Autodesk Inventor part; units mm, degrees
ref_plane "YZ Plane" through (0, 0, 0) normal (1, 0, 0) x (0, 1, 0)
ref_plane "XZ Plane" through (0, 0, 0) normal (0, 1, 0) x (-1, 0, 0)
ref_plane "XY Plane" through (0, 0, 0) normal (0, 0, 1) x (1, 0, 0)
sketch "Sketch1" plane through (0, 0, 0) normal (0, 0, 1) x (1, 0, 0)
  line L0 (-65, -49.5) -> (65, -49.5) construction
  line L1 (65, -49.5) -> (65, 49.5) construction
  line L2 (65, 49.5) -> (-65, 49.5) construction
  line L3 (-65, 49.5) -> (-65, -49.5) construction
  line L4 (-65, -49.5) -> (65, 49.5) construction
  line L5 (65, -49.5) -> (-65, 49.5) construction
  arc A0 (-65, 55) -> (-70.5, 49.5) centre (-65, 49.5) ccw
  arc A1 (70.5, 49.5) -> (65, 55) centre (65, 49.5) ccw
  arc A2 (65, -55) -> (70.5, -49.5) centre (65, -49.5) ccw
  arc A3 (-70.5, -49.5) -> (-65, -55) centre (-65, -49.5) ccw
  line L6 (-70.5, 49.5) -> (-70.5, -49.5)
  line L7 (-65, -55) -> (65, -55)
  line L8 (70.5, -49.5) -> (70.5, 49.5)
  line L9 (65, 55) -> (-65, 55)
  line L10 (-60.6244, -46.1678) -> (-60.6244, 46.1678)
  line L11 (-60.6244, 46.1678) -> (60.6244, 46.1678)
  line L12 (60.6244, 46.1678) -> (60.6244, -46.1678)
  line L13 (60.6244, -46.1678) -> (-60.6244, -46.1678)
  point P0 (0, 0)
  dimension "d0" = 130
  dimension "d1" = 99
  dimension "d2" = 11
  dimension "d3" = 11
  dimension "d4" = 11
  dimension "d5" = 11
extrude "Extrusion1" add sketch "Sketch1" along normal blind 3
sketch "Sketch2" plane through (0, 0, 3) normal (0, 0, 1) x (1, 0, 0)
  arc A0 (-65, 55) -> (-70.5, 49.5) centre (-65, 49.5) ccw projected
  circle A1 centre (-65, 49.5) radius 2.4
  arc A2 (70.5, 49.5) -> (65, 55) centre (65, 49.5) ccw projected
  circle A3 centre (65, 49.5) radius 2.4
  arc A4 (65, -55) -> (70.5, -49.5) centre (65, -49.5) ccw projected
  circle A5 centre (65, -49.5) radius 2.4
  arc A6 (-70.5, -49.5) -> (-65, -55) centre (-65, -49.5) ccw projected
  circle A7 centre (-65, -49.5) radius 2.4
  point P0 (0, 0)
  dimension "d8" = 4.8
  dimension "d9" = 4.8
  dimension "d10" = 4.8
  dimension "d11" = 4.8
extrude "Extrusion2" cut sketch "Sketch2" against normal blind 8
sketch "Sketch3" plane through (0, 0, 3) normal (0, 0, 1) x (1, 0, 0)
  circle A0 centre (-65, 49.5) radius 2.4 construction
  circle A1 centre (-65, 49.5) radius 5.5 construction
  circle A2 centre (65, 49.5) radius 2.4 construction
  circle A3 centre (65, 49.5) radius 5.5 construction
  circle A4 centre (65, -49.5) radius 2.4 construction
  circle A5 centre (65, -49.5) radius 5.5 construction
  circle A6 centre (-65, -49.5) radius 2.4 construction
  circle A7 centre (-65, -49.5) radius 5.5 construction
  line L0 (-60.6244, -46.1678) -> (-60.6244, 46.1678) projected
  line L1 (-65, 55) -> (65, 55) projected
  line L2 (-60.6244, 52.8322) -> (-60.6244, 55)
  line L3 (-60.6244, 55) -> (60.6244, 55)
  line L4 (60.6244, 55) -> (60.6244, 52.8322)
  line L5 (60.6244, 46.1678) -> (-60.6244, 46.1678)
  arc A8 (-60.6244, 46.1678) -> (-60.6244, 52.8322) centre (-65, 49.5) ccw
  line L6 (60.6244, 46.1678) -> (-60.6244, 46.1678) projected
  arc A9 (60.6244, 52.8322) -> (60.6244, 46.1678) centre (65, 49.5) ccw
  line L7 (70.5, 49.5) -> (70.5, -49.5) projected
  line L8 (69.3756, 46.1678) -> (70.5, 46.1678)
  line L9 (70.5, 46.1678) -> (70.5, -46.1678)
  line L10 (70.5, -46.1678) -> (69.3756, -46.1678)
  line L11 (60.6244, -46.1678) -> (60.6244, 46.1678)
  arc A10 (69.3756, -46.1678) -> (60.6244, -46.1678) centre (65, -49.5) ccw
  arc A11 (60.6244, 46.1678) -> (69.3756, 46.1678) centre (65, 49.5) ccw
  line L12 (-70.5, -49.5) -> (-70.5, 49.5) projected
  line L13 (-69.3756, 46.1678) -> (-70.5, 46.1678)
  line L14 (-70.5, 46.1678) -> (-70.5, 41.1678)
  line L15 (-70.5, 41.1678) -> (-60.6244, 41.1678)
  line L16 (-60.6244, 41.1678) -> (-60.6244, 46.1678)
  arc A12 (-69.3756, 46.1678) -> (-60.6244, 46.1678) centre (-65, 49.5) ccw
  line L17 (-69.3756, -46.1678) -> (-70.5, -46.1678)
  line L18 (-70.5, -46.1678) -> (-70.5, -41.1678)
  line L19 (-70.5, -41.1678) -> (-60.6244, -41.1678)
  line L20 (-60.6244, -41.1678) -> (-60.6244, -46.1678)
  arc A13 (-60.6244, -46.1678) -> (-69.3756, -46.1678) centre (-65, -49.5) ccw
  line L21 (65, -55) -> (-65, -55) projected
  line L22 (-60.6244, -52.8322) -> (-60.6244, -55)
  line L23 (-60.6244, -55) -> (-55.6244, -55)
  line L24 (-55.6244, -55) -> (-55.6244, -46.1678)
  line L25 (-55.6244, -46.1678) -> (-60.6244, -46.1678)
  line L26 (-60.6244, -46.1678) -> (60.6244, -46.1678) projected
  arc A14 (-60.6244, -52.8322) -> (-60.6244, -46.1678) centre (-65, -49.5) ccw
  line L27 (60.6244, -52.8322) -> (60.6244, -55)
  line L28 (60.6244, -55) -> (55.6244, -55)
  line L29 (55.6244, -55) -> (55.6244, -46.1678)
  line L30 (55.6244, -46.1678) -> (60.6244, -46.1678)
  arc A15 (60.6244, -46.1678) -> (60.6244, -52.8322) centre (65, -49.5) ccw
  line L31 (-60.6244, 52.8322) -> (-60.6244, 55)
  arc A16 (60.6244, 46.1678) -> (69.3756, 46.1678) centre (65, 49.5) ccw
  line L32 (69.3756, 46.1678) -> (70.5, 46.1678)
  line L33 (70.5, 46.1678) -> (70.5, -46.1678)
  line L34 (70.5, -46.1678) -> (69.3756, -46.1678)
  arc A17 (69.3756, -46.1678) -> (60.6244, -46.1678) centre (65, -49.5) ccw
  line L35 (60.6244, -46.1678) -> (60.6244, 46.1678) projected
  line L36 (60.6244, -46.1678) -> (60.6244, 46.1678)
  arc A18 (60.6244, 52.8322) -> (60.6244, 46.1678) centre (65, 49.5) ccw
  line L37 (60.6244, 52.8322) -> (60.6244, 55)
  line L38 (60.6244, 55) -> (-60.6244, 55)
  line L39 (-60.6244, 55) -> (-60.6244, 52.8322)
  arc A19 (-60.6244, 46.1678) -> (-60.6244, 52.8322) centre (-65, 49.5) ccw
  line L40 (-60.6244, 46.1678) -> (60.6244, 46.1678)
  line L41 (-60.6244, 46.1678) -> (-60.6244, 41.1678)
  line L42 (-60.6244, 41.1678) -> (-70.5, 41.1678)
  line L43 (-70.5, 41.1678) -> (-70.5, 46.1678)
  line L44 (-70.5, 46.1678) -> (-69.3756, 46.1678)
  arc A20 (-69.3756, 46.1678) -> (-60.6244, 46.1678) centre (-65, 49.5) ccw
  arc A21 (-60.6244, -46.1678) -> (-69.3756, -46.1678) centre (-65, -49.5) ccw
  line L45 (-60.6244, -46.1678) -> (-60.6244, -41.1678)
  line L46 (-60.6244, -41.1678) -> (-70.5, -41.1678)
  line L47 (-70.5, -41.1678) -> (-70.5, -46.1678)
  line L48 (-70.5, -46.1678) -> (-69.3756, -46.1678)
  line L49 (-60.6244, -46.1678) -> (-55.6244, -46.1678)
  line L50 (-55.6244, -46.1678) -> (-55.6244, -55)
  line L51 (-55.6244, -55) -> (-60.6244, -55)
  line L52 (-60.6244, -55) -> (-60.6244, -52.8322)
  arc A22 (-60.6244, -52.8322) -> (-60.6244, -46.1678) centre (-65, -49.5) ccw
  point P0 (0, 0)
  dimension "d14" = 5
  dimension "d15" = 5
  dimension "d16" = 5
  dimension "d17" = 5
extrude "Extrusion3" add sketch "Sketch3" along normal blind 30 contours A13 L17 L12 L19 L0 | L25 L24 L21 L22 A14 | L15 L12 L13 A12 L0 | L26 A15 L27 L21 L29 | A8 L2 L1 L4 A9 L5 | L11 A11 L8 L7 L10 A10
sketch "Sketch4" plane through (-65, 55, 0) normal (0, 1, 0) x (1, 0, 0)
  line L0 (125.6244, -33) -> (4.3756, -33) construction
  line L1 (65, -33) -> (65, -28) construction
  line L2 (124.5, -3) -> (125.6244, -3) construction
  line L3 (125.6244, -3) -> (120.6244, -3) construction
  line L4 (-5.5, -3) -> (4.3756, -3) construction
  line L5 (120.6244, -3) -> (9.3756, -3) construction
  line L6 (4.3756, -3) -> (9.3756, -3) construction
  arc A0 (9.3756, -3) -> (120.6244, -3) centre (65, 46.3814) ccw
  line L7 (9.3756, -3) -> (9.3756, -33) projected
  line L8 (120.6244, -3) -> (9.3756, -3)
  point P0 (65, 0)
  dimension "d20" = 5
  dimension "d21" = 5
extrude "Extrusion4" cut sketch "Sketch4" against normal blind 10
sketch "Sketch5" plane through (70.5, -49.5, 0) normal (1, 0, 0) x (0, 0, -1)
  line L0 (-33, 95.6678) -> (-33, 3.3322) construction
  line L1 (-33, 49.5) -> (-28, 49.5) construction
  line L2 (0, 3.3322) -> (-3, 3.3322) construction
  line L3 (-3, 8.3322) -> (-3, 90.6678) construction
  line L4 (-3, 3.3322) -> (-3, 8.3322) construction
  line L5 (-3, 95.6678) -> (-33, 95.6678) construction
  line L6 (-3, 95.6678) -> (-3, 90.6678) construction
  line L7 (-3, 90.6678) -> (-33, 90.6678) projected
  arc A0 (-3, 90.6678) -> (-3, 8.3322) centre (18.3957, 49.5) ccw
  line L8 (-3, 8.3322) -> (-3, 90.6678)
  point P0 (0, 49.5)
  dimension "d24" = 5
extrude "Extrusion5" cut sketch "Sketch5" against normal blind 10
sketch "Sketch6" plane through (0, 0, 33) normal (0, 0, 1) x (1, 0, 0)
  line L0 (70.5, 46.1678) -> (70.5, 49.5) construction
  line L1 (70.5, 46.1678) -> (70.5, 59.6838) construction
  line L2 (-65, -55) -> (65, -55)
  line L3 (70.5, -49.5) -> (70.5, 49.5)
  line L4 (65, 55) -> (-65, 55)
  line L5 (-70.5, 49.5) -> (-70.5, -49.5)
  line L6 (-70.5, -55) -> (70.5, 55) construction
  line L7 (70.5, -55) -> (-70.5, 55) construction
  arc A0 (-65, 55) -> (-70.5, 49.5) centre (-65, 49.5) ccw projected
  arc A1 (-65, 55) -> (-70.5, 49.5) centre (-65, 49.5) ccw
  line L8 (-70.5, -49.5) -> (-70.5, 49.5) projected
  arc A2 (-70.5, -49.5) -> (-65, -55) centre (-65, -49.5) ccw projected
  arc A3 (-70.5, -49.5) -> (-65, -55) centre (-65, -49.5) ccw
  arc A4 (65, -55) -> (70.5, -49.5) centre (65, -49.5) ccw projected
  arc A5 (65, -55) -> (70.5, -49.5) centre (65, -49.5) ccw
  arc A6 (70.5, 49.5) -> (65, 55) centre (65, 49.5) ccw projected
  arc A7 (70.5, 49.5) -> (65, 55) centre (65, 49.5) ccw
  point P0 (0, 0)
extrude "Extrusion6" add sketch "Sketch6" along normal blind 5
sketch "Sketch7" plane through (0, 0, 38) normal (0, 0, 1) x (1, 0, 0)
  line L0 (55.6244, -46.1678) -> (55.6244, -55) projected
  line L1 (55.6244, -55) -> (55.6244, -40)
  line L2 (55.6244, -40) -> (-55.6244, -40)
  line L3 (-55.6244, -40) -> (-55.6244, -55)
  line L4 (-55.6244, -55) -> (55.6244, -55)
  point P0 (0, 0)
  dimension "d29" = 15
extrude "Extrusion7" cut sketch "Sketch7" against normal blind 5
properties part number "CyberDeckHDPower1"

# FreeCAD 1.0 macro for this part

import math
import FreeCAD as App
import Part
import Sketcher
Q = App.Units.Quantity


def add_polygon(sketch, points):
    """Adds a closed chain of lines whose ends are joined by coincident constraints."""
    first, n = sketch.GeometryCount, len(points)
    for a, b in zip(points, points[1:] + points[:1]):
        sketch.addGeometry(Part.LineSegment(App.Vector(*a, 0), App.Vector(*b, 0)), False)
    for i in range(n):
        sketch.addConstraint(Sketcher.Constraint("Coincident", first + i, 2, first + (i + 1) % n, 1))

doc = App.newDocument("Part")
params = doc.addObject("Spreadsheet::Sheet", "Params")
for row, (alias, value) in enumerate([
    ("sketch1_radius", "5.5 mm"),
    ("sketch1_width", "130 mm"),
    ("sketch1_height", "99 mm"),
    ("pad1_length", "3 mm"),
    ("sketch2_diameter", "4.8 mm"),
    ("pocket1_length", "8 mm"),
    ("sketch3_width", "5 mm"),
    ("sketch3_radius", "5.5 mm"),
    ("pad2_length", "30 mm"),
    ("pocket2_length", "10 mm"),
    ("pocket3_length", "10 mm"),
    ("sketch6_radius", "5.5 mm"),
    ("sketch6_width", "130 mm"),
    ("sketch6_height", "99 mm"),
    ("pad3_length", "5 mm"),
    ("sketch7_height", "15 mm"),
    ("pocket4_length", "5 mm"),
], start=1):
    params.set(f"A{row}", alias)
    params.set(f"B{row}", "=" + value)
    params.setAlias(f"B{row}", alias)

body = doc.addObject("PartDesign::Body", "Body")

sketch1 = doc.addObject("Sketcher::SketchObject", "Sketch")
body.addObject(sketch1)
sketch1.AttachmentSupport = (doc.XY_Plane, [""])
sketch1.MapMode = "FlatFace"
sketch1.addGeometry(Part.LineSegment(App.Vector(65, 55, 0), App.Vector(-65, 55, 0)), False)
sketch1.addGeometry(Part.ArcOfCircle(Part.Circle(App.Vector(-65, 49.5, 0), App.Vector(0, 0, 1), 5.5), math.radians(90), math.radians(180)), False)
sketch1.addGeometry(Part.LineSegment(App.Vector(-70.5, 49.5, 0), App.Vector(-70.5, -49.5, 0)), False)
sketch1.addGeometry(Part.ArcOfCircle(Part.Circle(App.Vector(-65, -49.5, 0), App.Vector(0, 0, 1), 5.5), math.radians(180), math.radians(270)), False)
sketch1.addGeometry(Part.LineSegment(App.Vector(-65, -55, 0), App.Vector(65, -55, 0)), False)
sketch1.addGeometry(Part.ArcOfCircle(Part.Circle(App.Vector(65, -49.5, 0), App.Vector(0, 0, 1), 5.5), math.radians(-90), math.radians(0)), False)
sketch1.addGeometry(Part.LineSegment(App.Vector(70.5, -49.5, 0), App.Vector(70.5, 49.5, 0)), False)
sketch1.addGeometry(Part.ArcOfCircle(Part.Circle(App.Vector(65, 49.5, 0), App.Vector(0, 0, 1), 5.5), math.radians(0), math.radians(90)), False)
add_polygon(sketch1, [(60.6244, -46.1678), (-60.6244, -46.1678), (-60.6244, 46.1678), (60.6244, 46.1678)])
sketch1.addConstraint([
    Sketcher.Constraint("Tangent", 0, 2, 1, 1),
    Sketcher.Constraint("Tangent", 1, 2, 2, 1),
    Sketcher.Constraint("Tangent", 2, 2, 3, 1),
    Sketcher.Constraint("Tangent", 3, 2, 4, 1),
    Sketcher.Constraint("Tangent", 4, 2, 5, 1),
    Sketcher.Constraint("Tangent", 5, 2, 6, 1),
    Sketcher.Constraint("Tangent", 6, 2, 7, 1),
    Sketcher.Constraint("Tangent", 7, 2, 0, 1),
    Sketcher.Constraint("Horizontal", 0),
    Sketcher.Constraint("Vertical", 2),
    Sketcher.Constraint("Horizontal", 4),
    Sketcher.Constraint("Vertical", 6),
    Sketcher.Constraint("Horizontal", 8),
    Sketcher.Constraint("Vertical", 9),
    Sketcher.Constraint("Horizontal", 10),
    Sketcher.Constraint("Vertical", 11),
    Sketcher.Constraint("Equal", 1, 3),
    Sketcher.Constraint("Equal", 3, 5),
    Sketcher.Constraint("Equal", 5, 7),
    Sketcher.Constraint("Symmetric", 1, 3, 5, 3, -1, 1),
    Sketcher.Constraint("Symmetric", 8, 2, 10, 2, -1, 1),
    Sketcher.Constraint("Radius", 1, Q("5.5 mm")),
    Sketcher.Constraint("DistanceX", 0, 2, 0, 1, Q("130 mm")),
    Sketcher.Constraint("DistanceY", 2, 2, 2, 1, Q("99 mm")),
    Sketcher.Constraint("DistanceX", 8, 2, 8, 1, Q("121.2488 mm")),
    Sketcher.Constraint("DistanceY", 9, 1, 9, 2, Q("92.3356 mm")),
])
sketch1.setExpression("Constraints[25]", "Params.sketch1_radius")
sketch1.setExpression("Constraints[26]", "Params.sketch1_width")
sketch1.setExpression("Constraints[27]", "Params.sketch1_height")
pad1 = doc.addObject("PartDesign::Pad", "Pad")
body.addObject(pad1)
pad1.Profile = sketch1
pad1.setExpression("Length", "Params.pad1_length")

sketch2 = doc.addObject("Sketcher::SketchObject", "Sketch001")
body.addObject(sketch2)
sketch2.AttachmentSupport = (doc.XY_Plane, [""])
sketch2.MapMode = "FlatFace"
sketch2.AttachmentOffset = App.Placement(App.Vector(0, 0, 3), App.Rotation())
sketch2.addGeometry([
    Part.Circle(App.Vector(-65, 49.5, 0), App.Vector(0, 0, 1), 2.4),
    Part.Circle(App.Vector(65, 49.5, 0), App.Vector(0, 0, 1), 2.4),
    Part.Circle(App.Vector(65, -49.5, 0), App.Vector(0, 0, 1), 2.4),
    Part.Circle(App.Vector(-65, -49.5, 0), App.Vector(0, 0, 1), 2.4),
], False)
sketch2.addConstraint([
    Sketcher.Constraint("Equal", 0, 1),
    Sketcher.Constraint("Equal", 1, 2),
    Sketcher.Constraint("Equal", 2, 3),
    Sketcher.Constraint("Symmetric", 0, 3, 2, 3, -1, 1),
    Sketcher.Constraint("Symmetric", 1, 3, 3, 3, -1, 1),
    Sketcher.Constraint("Symmetric", 0, 3, 1, 3, -2),
    Sketcher.Constraint("Diameter", 0, Q("4.8 mm")),
    Sketcher.Constraint("DistanceX", 0, 3, -1, 1, Q("65 mm")),
    Sketcher.Constraint("DistanceY", 2, 3, 1, 3, Q("99 mm")),
])
sketch2.setExpression("Constraints[6]", "Params.sketch2_diameter")
pocket1 = doc.addObject("PartDesign::Pocket", "Pocket")
body.addObject(pocket1)
pocket1.Profile = sketch2
pocket1.setExpression("Length", "Params.pocket1_length")

sketch3 = doc.addObject("Sketcher::SketchObject", "Sketch002")
body.addObject(sketch3)
sketch3.AttachmentSupport = (doc.XY_Plane, [""])
sketch3.MapMode = "FlatFace"
sketch3.AttachmentOffset = App.Placement(App.Vector(0, 0, 3), App.Rotation())
sketch3.addGeometry([
    Part.ArcOfCircle(Part.Circle(App.Vector(-65, -49.5, 0), App.Vector(0, 0, 1), 5.499948), math.radians(37.290769), math.radians(142.709231)),
    Part.LineSegment(App.Vector(-60.6244, -46.1678, 0), App.Vector(-60.6244, -41.1678, 0)),
    Part.LineSegment(App.Vector(-60.6244, -41.1678, 0), App.Vector(-70.5, -41.1678, 0)),
    Part.LineSegment(App.Vector(-70.5, -41.1678, 0), App.Vector(-70.5, -46.1678, 0)),
    Part.LineSegment(App.Vector(-70.5, -46.1678, 0), App.Vector(-69.3756, -46.1678, 0)),
    Part.LineSegment(App.Vector(-55.6244, -46.1678, 0), App.Vector(-60.6244, -46.1678, 0)),
    Part.ArcOfCircle(Part.Circle(App.Vector(-65, -49.5, 0), App.Vector(0, 0, 1), 5.499948), math.radians(-37.290769), math.radians(37.290769)),
    Part.LineSegment(App.Vector(-60.6244, -52.8322, 0), App.Vector(-60.6244, -55, 0)),
    Part.LineSegment(App.Vector(-60.6244, -55, 0), App.Vector(-55.6244, -55, 0)),
    Part.LineSegment(App.Vector(-55.6244, -55, 0), App.Vector(-55.6244, -46.1678, 0)),
    Part.LineSegment(App.Vector(-70.5, 41.1678, 0), App.Vector(-60.6244, 41.1678, 0)),
    Part.LineSegment(App.Vector(-60.6244, 41.1678, 0), App.Vector(-60.6244, 46.1678, 0)),
    Part.ArcOfCircle(Part.Circle(App.Vector(-65, 49.5, 0), App.Vector(0, 0, 1), 5.499948), math.radians(-142.709231), math.radians(-37.290769)),
    Part.LineSegment(App.Vector(-69.3756, 46.1678, 0), App.Vector(-70.5, 46.1678, 0)),
    Part.LineSegment(App.Vector(-70.5, 46.1678, 0), App.Vector(-70.5, 41.1678, 0)),
    Part.LineSegment(App.Vector(60.6244, -46.1678, 0), App.Vector(55.6244, -46.1678, 0)),
    Part.LineSegment(App.Vector(55.6244, -46.1678, 0), App.Vector(55.6244, -55, 0)),
    Part.LineSegment(App.Vector(55.6244, -55, 0), App.Vector(60.6244, -55, 0)),
    Part.LineSegment(App.Vector(60.6244, -55, 0), App.Vector(60.6244, -52.8322, 0)),
    Part.ArcOfCircle(Part.Circle(App.Vector(65, -49.5, 0), App.Vector(0, 0, 1), 5.499948), math.radians(142.709231), math.radians(217.290769)),
    Part.ArcOfCircle(Part.Circle(App.Vector(-65, 49.5, 0), App.Vector(0, 0, 1), 5.499948), math.radians(-37.290769), math.radians(37.290769)),
    Part.LineSegment(App.Vector(-60.6244, 46.1678, 0), App.Vector(60.6244, 46.1678, 0)),
    Part.ArcOfCircle(Part.Circle(App.Vector(65, 49.5, 0), App.Vector(0, 0, 1), 5.499948), math.radians(142.709231), math.radians(217.290769)),
    Part.LineSegment(App.Vector(60.6244, 52.8322, 0), App.Vector(60.6244, 55, 0)),
    Part.LineSegment(App.Vector(60.6244, 55, 0), App.Vector(-60.6244, 55, 0)),
    Part.LineSegment(App.Vector(-60.6244, 55, 0), App.Vector(-60.6244, 52.8322, 0)),
    Part.LineSegment(App.Vector(60.6244, 46.1678, 0), App.Vector(60.6244, -46.1678, 0)),
    Part.ArcOfCircle(Part.Circle(App.Vector(65, -49.5, 0), App.Vector(0, 0, 1), 5.499948), math.radians(37.290769), math.radians(142.709231)),
    Part.LineSegment(App.Vector(69.3756, -46.1678, 0), App.Vector(70.5, -46.1678, 0)),
    Part.LineSegment(App.Vector(70.5, -46.1678, 0), App.Vector(70.5, 46.1678, 0)),
    Part.LineSegment(App.Vector(70.5, 46.1678, 0), App.Vector(69.3756, 46.1678, 0)),
    Part.ArcOfCircle(Part.Circle(App.Vector(65, 49.5, 0), App.Vector(0, 0, 1), 5.499948), math.radians(-142.709231), math.radians(-37.290769)),
], False)
sketch3.addConstraint([
    Sketcher.Constraint("Coincident", 0, 1, 1, 1),
    Sketcher.Constraint("Coincident", 1, 2, 2, 1),
    Sketcher.Constraint("Coincident", 2, 2, 3, 1),
    Sketcher.Constraint("Coincident", 3, 2, 4, 1),
    Sketcher.Constraint("Coincident", 4, 2, 0, 2),
    Sketcher.Constraint("Coincident", 5, 2, 6, 2),
    Sketcher.Constraint("Coincident", 6, 1, 7, 1),
    Sketcher.Constraint("Coincident", 7, 2, 8, 1),
    Sketcher.Constraint("Coincident", 8, 2, 9, 1),
    Sketcher.Constraint("Coincident", 9, 2, 5, 1),
    Sketcher.Constraint("Coincident", 10, 2, 11, 1),
    Sketcher.Constraint("Coincident", 11, 2, 12, 2),
    Sketcher.Constraint("Coincident", 12, 1, 13, 1),
    Sketcher.Constraint("Coincident", 13, 2, 14, 1),
    Sketcher.Constraint("Coincident", 14, 2, 10, 1),
    Sketcher.Constraint("Coincident", 15, 2, 16, 1),
    Sketcher.Constraint("Coincident", 16, 2, 17, 1),
    Sketcher.Constraint("Coincident", 17, 2, 18, 1),
    Sketcher.Constraint("Coincident", 18, 2, 19, 2),
    Sketcher.Constraint("Coincident", 19, 1, 15, 1),
    Sketcher.Constraint("Coincident", 20, 1, 21, 1),
    Sketcher.Constraint("Coincident", 21, 2, 22, 2),
    Sketcher.Constraint("Coincident", 22, 1, 23, 1),
    Sketcher.Constraint("Coincident", 23, 2, 24, 1),
    Sketcher.Constraint("Coincident", 24, 2, 25, 1),
    Sketcher.Constraint("Coincident", 25, 2, 20, 2),
    Sketcher.Constraint("Coincident", 26, 2, 27, 2),
    Sketcher.Constraint("Coincident", 27, 1, 28, 1),
    Sketcher.Constraint("Coincident", 28, 2, 29, 1),
    Sketcher.Constraint("Coincident", 29, 2, 30, 1),
    Sketcher.Constraint("Coincident", 30, 2, 31, 2),
    Sketcher.Constraint("Coincident", 31, 1, 26, 1),
    Sketcher.Constraint("Vertical", 1),
    Sketcher.Constraint("Horizontal", 2),
    Sketcher.Constraint("Vertical", 3),
    Sketcher.Constraint("Horizontal", 4),
    Sketcher.Constraint("Horizontal", 5),
    Sketcher.Constraint("Vertical", 7),
    Sketcher.Constraint("Horizontal", 8),
    Sketcher.Constraint("Vertical", 9),
    Sketcher.Constraint("Horizontal", 10),
    Sketcher.Constraint("Vertical", 11),
    Sketcher.Constraint("Horizontal", 13),
    Sketcher.Constraint("Vertical", 14),
    Sketcher.Constraint("Horizontal", 15),
    Sketcher.Constraint("Vertical", 16),
    Sketcher.Constraint("Horizontal", 17),
    Sketcher.Constraint("Vertical", 18),
    Sketcher.Constraint("Horizontal", 21),
    Sketcher.Constraint("Vertical", 23),
    Sketcher.Constraint("Horizontal", 24),
    Sketcher.Constraint("Vertical", 25),
    Sketcher.Constraint("Vertical", 26),
    Sketcher.Constraint("Horizontal", 28),
    Sketcher.Constraint("Vertical", 29),
    Sketcher.Constraint("Horizontal", 30),
    Sketcher.Constraint("Coincident", 6, 3, 0, 3),
    Sketcher.Constraint("Coincident", 20, 3, 12, 3),
    Sketcher.Constraint("Coincident", 27, 3, 19, 3),
    Sketcher.Constraint("Coincident", 31, 3, 22, 3),
    Sketcher.Constraint("Coincident", 5, 2, 0, 1),
    Sketcher.Constraint("Coincident", 20, 1, 11, 2),
    Sketcher.Constraint("Coincident", 26, 2, 19, 1),
    Sketcher.Constraint("Coincident", 31, 1, 21, 2),
    Sketcher.Constraint("Equal", 6, 12),
    Sketcher.Constraint("Equal", 12, 19),
    Sketcher.Constraint("Equal", 20, 22),
    Sketcher.Constraint("Symmetric", 12, 3, 19, 3, -1, 1),
    Sketcher.Constraint("Symmetric", 0, 3, 22, 3, -1, 1),
    Sketcher.Constraint("Symmetric", 7, 2, 23, 2, -1, 1),
    Sketcher.Constraint("Symmetric", 17, 2, 24, 2, -1, 1),
    Sketcher.Constraint("Symmetric", 13, 2, 28, 2, -1, 1),
    Sketcher.Constraint("Symmetric", 3, 2, 29, 2, -1, 1),
    Sketcher.Constraint("Symmetric", 0, 3, 19, 3, -2),
    Sketcher.Constraint("Symmetric", 9, 2, 15, 2, -2),
    Sketcher.Constraint("Horizontal", 0, 1, 3, 2),
    Sketcher.Constraint("Horizontal", 11, 2, 12, 1),
    Sketcher.Constraint("Horizontal", 6, 1, 18, 2),
    Sketcher.Constraint("Vertical", 5, 2, 6, 1),
    Sketcher.Constraint("Equal", 17, 1),
    Sketcher.Constraint("Equal", 3, 11),
    Sketcher.Constraint("DistanceX", 5, 2, 5, 1, Q("5 mm")),
    Sketcher.Constraint("Radius", 0, Q("5.5 mm")),
    Sketcher.Constraint("DistanceX", 0, 3, -1, 1, Q("65 mm")),
    Sketcher.Constraint("DistanceY", 7, 2, -1, 1, Q("55 mm")),
    Sketcher.Constraint("DistanceY", 0, 3, 12, 3, Q("99 mm")),
    Sketcher.Constraint("DistanceX", 2, 2, -1, 1, Q("70.5 mm")),
    Sketcher.Constraint("DistanceX", 2, 2, 2, 1, Q("9.8756 mm")),
])
sketch3.setExpression("Constraints[81]", "Params.sketch3_width")
sketch3.setExpression("Constraints[82]", "Params.sketch3_radius")
pad2 = doc.addObject("PartDesign::Pad", "Pad001")
body.addObject(pad2)
pad2.Profile = sketch3
pad2.setExpression("Length", "Params.pad2_length")

sketch4 = doc.addObject("Sketcher::SketchObject", "Sketch003")
body.addObject(sketch4)
sketch4.AttachmentSupport = (doc.XZ_Plane, [""])
sketch4.MapMode = "FlatFace"
sketch4.AttachmentOffset = App.Placement(App.Vector(0, 0, -55), App.Rotation())
sketch4.addGeometry([
    Part.LineSegment(App.Vector(55.6244, 3, 0), App.Vector(-55.6244, 3, 0)),
    Part.ArcOfCircle(Part.Circle(App.Vector(0, -46.3814, 0), App.Vector(0, 0, 1), 74.381426), math.radians(41.59755), math.radians(138.40245)),
], False)
sketch4.addConstraint([
    Sketcher.Constraint("Coincident", 0, 1, 1, 1),
    Sketcher.Constraint("Coincident", 1, 2, 0, 2),
    Sketcher.Constraint("Horizontal", 0),
    Sketcher.Constraint("PointOnObject", 1, 3, -2),
    Sketcher.Constraint("DistanceY", -1, 1, 0, 1, Q("3 mm")),
    Sketcher.Constraint("Radius", 1, Q("74.3814 mm")),
    Sketcher.Constraint("DistanceX", 0, 2, 0, 1, Q("111.2488 mm")),
])
pocket2 = doc.addObject("PartDesign::Pocket", "Pocket001")
body.addObject(pocket2)
pocket2.Profile = sketch4
pocket2.setExpression("Length", "Params.pocket2_length")
pocket2.Reversed = True

sketch5 = doc.addObject("Sketcher::SketchObject", "Sketch004")
body.addObject(sketch5)
sketch5.AttachmentSupport = (doc.YZ_Plane, [""])
sketch5.MapMode = "FlatFace"
sketch5.AttachmentOffset = App.Placement(App.Vector(0, 0, 70.5), App.Rotation())
sketch5.addGeometry([
    Part.LineSegment(App.Vector(-41.1678, 3, 0), App.Vector(41.1678, 3, 0)),
    Part.ArcOfCircle(Part.Circle(App.Vector(0, -18.3957, 0), App.Vector(0, 0, 1), 46.39573), math.radians(27.46177), math.radians(152.53823)),
], False)
sketch5.addConstraint([
    Sketcher.Constraint("Coincident", 0, 1, 1, 2),
    Sketcher.Constraint("Coincident", 1, 1, 0, 2),
    Sketcher.Constraint("Horizontal", 0),
    Sketcher.Constraint("PointOnObject", 1, 3, -2),
    Sketcher.Constraint("DistanceY", -1, 1, 0, 1, Q("3 mm")),
    Sketcher.Constraint("Radius", 1, Q("46.3957 mm")),
    Sketcher.Constraint("DistanceX", 0, 1, 0, 2, Q("82.3356 mm")),
])
pocket3 = doc.addObject("PartDesign::Pocket", "Pocket002")
body.addObject(pocket3)
pocket3.Profile = sketch5
pocket3.setExpression("Length", "Params.pocket3_length")

sketch6 = doc.addObject("Sketcher::SketchObject", "Sketch005")
body.addObject(sketch6)
sketch6.AttachmentSupport = (doc.XY_Plane, [""])
sketch6.MapMode = "FlatFace"
sketch6.AttachmentOffset = App.Placement(App.Vector(0, 0, 33), App.Rotation())
sketch6.addGeometry([
    Part.ArcOfCircle(Part.Circle(App.Vector(-65, -49.5, 0), App.Vector(0, 0, 1), 5.5), math.radians(180), math.radians(270)),
    Part.LineSegment(App.Vector(-65, -55, 0), App.Vector(65, -55, 0)),
    Part.ArcOfCircle(Part.Circle(App.Vector(65, -49.5, 0), App.Vector(0, 0, 1), 5.5), math.radians(-90), math.radians(0)),
    Part.LineSegment(App.Vector(70.5, -49.5, 0), App.Vector(70.5, 49.5, 0)),
    Part.ArcOfCircle(Part.Circle(App.Vector(65, 49.5, 0), App.Vector(0, 0, 1), 5.5), math.radians(0), math.radians(90)),
    Part.LineSegment(App.Vector(65, 55, 0), App.Vector(-65, 55, 0)),
    Part.ArcOfCircle(Part.Circle(App.Vector(-65, 49.5, 0), App.Vector(0, 0, 1), 5.5), math.radians(90), math.radians(180)),
    Part.LineSegment(App.Vector(-70.5, 49.5, 0), App.Vector(-70.5, -49.5, 0)),
], False)
sketch6.addConstraint([
    Sketcher.Constraint("Tangent", 0, 2, 1, 1),
    Sketcher.Constraint("Tangent", 1, 2, 2, 1),
    Sketcher.Constraint("Tangent", 2, 2, 3, 1),
    Sketcher.Constraint("Tangent", 3, 2, 4, 1),
    Sketcher.Constraint("Tangent", 4, 2, 5, 1),
    Sketcher.Constraint("Tangent", 5, 2, 6, 1),
    Sketcher.Constraint("Tangent", 6, 2, 7, 1),
    Sketcher.Constraint("Tangent", 7, 2, 0, 1),
    Sketcher.Constraint("Horizontal", 1),
    Sketcher.Constraint("Vertical", 3),
    Sketcher.Constraint("Horizontal", 5),
    Sketcher.Constraint("Vertical", 7),
    Sketcher.Constraint("Equal", 0, 2),
    Sketcher.Constraint("Equal", 2, 4),
    Sketcher.Constraint("Equal", 4, 6),
    Sketcher.Constraint("Symmetric", 0, 3, 4, 3, -1, 1),
    Sketcher.Constraint("Radius", 0, Q("5.5 mm")),
    Sketcher.Constraint("DistanceX", 1, 1, 1, 2, Q("130 mm")),
    Sketcher.Constraint("DistanceY", 3, 1, 3, 2, Q("99 mm")),
])
sketch6.setExpression("Constraints[16]", "Params.sketch6_radius")
sketch6.setExpression("Constraints[17]", "Params.sketch6_width")
sketch6.setExpression("Constraints[18]", "Params.sketch6_height")
pad3 = doc.addObject("PartDesign::Pad", "Pad002")
body.addObject(pad3)
pad3.Profile = sketch6
pad3.setExpression("Length", "Params.pad3_length")

sketch7 = doc.addObject("Sketcher::SketchObject", "Sketch006")
body.addObject(sketch7)
sketch7.AttachmentSupport = (doc.XY_Plane, [""])
sketch7.MapMode = "FlatFace"
sketch7.AttachmentOffset = App.Placement(App.Vector(0, 0, 38), App.Rotation())
add_polygon(sketch7, [(55.6244, -55), (55.6244, -40), (-55.6244, -40), (-55.6244, -55)])
sketch7.addConstraint([
    Sketcher.Constraint("Vertical", 0),
    Sketcher.Constraint("Horizontal", 1),
    Sketcher.Constraint("Vertical", 2),
    Sketcher.Constraint("Horizontal", 3),
    Sketcher.Constraint("DistanceY", 0, 1, 0, 2, Q("15 mm")),
    Sketcher.Constraint("DistanceY", 0, 2, -1, 1, Q("40 mm")),
    Sketcher.Constraint("DistanceX", 1, 2, 1, 1, Q("111.2488 mm")),
    Sketcher.Constraint("DistanceX", -1, 1, 0, 2, Q("55.6244 mm")),
])
sketch7.setExpression("Constraints[8]", "Params.sketch7_height")
pocket4 = doc.addObject("PartDesign::Pocket", "Pocket003")
body.addObject(pocket4)
pocket4.Profile = sketch7
pocket4.setExpression("Length", "Params.pocket4_length")

doc.recompute()
